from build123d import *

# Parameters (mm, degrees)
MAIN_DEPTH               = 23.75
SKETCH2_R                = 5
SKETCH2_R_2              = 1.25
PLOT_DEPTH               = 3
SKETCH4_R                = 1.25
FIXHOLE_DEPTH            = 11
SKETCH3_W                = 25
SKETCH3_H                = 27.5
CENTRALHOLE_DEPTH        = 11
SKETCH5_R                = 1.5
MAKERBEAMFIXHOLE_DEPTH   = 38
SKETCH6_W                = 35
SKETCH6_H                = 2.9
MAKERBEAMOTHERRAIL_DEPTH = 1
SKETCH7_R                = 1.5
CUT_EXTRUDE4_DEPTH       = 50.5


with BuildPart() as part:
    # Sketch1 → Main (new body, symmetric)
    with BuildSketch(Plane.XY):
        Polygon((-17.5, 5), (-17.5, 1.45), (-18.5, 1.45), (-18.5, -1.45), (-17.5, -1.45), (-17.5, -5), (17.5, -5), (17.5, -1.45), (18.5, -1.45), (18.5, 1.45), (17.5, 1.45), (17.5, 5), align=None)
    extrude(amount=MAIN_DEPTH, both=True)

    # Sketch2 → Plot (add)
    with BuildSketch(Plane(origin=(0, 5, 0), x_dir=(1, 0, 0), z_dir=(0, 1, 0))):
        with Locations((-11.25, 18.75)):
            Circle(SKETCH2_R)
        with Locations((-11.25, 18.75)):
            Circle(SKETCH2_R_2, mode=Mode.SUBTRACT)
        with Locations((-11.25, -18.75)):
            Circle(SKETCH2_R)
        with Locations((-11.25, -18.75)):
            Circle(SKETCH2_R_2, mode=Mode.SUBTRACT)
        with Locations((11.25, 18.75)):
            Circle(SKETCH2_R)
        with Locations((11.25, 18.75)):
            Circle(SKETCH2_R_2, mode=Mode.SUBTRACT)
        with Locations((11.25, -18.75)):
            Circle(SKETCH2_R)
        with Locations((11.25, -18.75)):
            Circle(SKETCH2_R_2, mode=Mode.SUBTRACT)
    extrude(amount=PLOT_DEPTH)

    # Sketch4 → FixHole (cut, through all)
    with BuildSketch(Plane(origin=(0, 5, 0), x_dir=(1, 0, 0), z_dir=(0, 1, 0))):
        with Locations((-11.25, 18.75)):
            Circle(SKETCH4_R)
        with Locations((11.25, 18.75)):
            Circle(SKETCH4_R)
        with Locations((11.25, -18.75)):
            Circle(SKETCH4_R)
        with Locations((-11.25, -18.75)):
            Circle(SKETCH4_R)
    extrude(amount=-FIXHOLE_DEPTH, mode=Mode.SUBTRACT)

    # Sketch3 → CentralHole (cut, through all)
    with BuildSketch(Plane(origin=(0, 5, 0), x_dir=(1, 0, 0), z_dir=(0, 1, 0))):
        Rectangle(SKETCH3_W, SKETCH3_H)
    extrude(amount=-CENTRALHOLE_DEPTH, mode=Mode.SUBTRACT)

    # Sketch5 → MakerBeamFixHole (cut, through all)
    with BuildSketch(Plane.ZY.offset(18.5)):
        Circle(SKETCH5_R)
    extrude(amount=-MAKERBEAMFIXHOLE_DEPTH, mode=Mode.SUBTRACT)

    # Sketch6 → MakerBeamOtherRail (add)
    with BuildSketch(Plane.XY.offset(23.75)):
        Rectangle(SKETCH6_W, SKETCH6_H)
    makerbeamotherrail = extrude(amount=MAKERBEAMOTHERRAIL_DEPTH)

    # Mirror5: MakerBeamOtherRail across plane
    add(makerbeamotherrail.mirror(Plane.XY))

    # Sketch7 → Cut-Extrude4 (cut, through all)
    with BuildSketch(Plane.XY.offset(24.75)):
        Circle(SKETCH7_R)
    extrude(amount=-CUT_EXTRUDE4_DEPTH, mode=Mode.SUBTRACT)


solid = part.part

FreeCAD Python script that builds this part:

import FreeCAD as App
import Part
import Sketcher

V = App.Vector
Q = App.Units.Quantity


def add_polygon(sketch, points):
    """Adds a closed chain of lines whose ends are joined by coincident constraints."""
    first, n = sketch.GeometryCount, len(points)
    for a, b in zip(points, points[1:] + points[:1]):
        sketch.addGeometry(Part.LineSegment(App.Vector(*a, 0), App.Vector(*b, 0)), False)
    for i in range(n):
        sketch.addConstraint(Sketcher.Constraint("Coincident", first + i, 2, first + (i + 1) % n, 1))

doc = App.newDocument("Part")
body = doc.addObject("PartDesign::Body", "Body")

# Sketch on XY plane
sketch1 = doc.addObject("Sketcher::SketchObject", "Sketch")
body.addObject(sketch1)
sketch1.AttachmentSupport = (doc.XY_Plane, [""])
sketch1.MapMode = "FlatFace"
add_polygon(sketch1, [(-17.5, 5), (-17.5, 1.4), (-18.5, 1.4), (-18.5, -1.4), (-17.5, -1.4), (-17.5, -5), (17.5, -5), (17.5, -1.4), (18.5, -1.4), (18.5, 1.4), (17.5, 1.4), (17.5, 5)])  # lines 0-11
sketch1.addConstraint([
    Sketcher.Constraint("Vertical", 0),
    Sketcher.Constraint("Horizontal", 1),
    Sketcher.Constraint("Vertical", 2),
    Sketcher.Constraint("Horizontal", 3),
    Sketcher.Constraint("Vertical", 4),
    Sketcher.Constraint("Horizontal", 5),
    Sketcher.Constraint("Vertical", 6),
    Sketcher.Constraint("Horizontal", 7),
    Sketcher.Constraint("Vertical", 8),
    Sketcher.Constraint("Horizontal", 9),
    Sketcher.Constraint("Vertical", 10),
    Sketcher.Constraint("Horizontal", 11),
    Sketcher.Constraint("Symmetric", 0, 2, 6, 2, -1, 1),
    Sketcher.Constraint("Symmetric", 2, 2, 8, 2, -1, 1),
    Sketcher.Constraint("Symmetric", 4, 2, 10, 2, -1, 1),
    Sketcher.Constraint("Symmetric", 3, 2, 6, 2, -2),
    Sketcher.Constraint("DistanceX", 1, 2, 1, 1, Q("1 mm")),
    Sketcher.Constraint("DistanceX", 5, 1, 5, 2, Q("35 mm")),
    Sketcher.Constraint("DistanceY", 2, 2, 2, 1, Q("2.9 mm")),
    Sketcher.Constraint("DistanceY", 4, 2, -1, 1, Q("5 mm")),
])
pad1 = doc.addObject("PartDesign::Pad", "Pad")
body.addObject(pad1)
pad1.Profile = sketch1
pad1.Length = 47.5
pad1.Midplane = True

# Sketch on XZ plane
sketch2 = doc.addObject("Sketcher::SketchObject", "Sketch001")
body.addObject(sketch2)
sketch2.AttachmentSupport = (doc.XZ_Plane, [""])
sketch2.MapMode = "FlatFace"
sketch2.AttachmentOffset = App.Placement(V(0, 0, -5), App.Rotation())
sketch2.addGeometry([
    Part.Circle(V(-11.2, -18.8, 0), V(0, 0, 1), 5),  # 0
    Part.Circle(V(-11.2, -18.8, 0), V(0, 0, 1), 1.2),  # 1
    Part.Circle(V(-11.2, 18.8, 0), V(0, 0, 1), 5),  # 2
    Part.Circle(V(-11.2, 18.8, 0), V(0, 0, 1), 1.2),  # 3
    Part.Circle(V(11.2, -18.8, 0), V(0, 0, 1), 5),  # 4
    Part.Circle(V(11.2, -18.8, 0), V(0, 0, 1), 1.2),  # 5
    Part.Circle(V(11.2, 18.8, 0), V(0, 0, 1), 5),  # 6
    Part.Circle(V(11.2, 18.8, 0), V(0, 0, 1), 1.2),  # 7
], False)
sketch2.addConstraint([
    Sketcher.Constraint("Coincident", 1, 3, 0, 3),
    Sketcher.Constraint("Coincident", 3, 3, 2, 3),
    Sketcher.Constraint("Coincident", 5, 3, 4, 3),
    Sketcher.Constraint("Coincident", 7, 3, 6, 3),
    Sketcher.Constraint("Equal", 0, 2),
    Sketcher.Constraint("Equal", 1, 3),
    Sketcher.Constraint("Equal", 2, 4),
    Sketcher.Constraint("Equal", 3, 5),
    Sketcher.Constraint("Equal", 4, 6),
    Sketcher.Constraint("Equal", 5, 7),
    Sketcher.Constraint("Symmetric", 2, 3, 4, 3, -1, 1),
    Sketcher.Constraint("Symmetric", 0, 3, 6, 3, -1, 1),
    Sketcher.Constraint("Symmetric", 0, 3, 4, 3, -2),
    Sketcher.Constraint("Diameter", 0, Q("10 mm")),
    Sketcher.Constraint("Diameter", 1, Q("2.5 mm")),
    Sketcher.Constraint("DistanceY", 0, 3, 2, 3, Q("37.5 mm")),
    Sketcher.Constraint("DistanceX", 0, 3, 4, 3, Q("22.5 mm")),
])
pad2 = doc.addObject("PartDesign::Pad", "Pad001")
body.addObject(pad2)
pad2.Profile = sketch2
pad2.Length = 3
pad2.Reversed = True

# Sketch on XZ plane
sketch3 = doc.addObject("Sketcher::SketchObject", "Sketch002")
body.addObject(sketch3)
sketch3.AttachmentSupport = (doc.XZ_Plane, [""])
sketch3.MapMode = "FlatFace"
sketch3.AttachmentOffset = App.Placement(V(0, 0, -5), App.Rotation())
sketch3.addGeometry([
    Part.Circle(V(-11.2, -18.8, 0), V(0, 0, 1), 1.2),
    Part.Circle(V(11.2, -18.8, 0), V(0, 0, 1), 1.2),
    Part.Circle(V(11.2, 18.8, 0), V(0, 0, 1), 1.2),
    Part.Circle(V(-11.2, 18.8, 0), V(0, 0, 1), 1.2),
], False)
sketch3.addConstraint([
    Sketcher.Constraint("Equal", 0, 1),
    Sketcher.Constraint("Equal", 1, 2),
    Sketcher.Constraint("Equal", 2, 3),
    Sketcher.Constraint("Symmetric", 0, 3, 2, 3, -1, 1),
    Sketcher.Constraint("Symmetric", 1, 3, 3, 3, -1, 1),
    Sketcher.Constraint("Symmetric", 0, 3, 1, 3, -2),
    Sketcher.Constraint("Diameter", 0, Q("2.5 mm")),
    Sketcher.Constraint("DistanceX", 0, 3, 1, 3, Q("22.5 mm")),
    Sketcher.Constraint("DistanceY", 1, 3, 2, 3, Q("37.5 mm")),
])
pocket1 = doc.addObject("PartDesign::Pocket", "Pocket")
body.addObject(pocket1)
pocket1.Profile = sketch3
pocket1.Type = "ThroughAll"
pocket1.Reversed = True

# Sketch on XZ plane
sketch4 = doc.addObject("Sketcher::SketchObject", "Sketch003")
body.addObject(sketch4)
sketch4.AttachmentSupport = (doc.XZ_Plane, [""])
sketch4.MapMode = "FlatFace"
sketch4.AttachmentOffset = App.Placement(V(0, 0, -5), App.Rotation())
add_polygon(sketch4, [(-12, -14), (-12, 14), (12, 14), (12, -14)])  # lines 0-3
sketch4.addConstraint([
    Sketcher.Constraint("Vertical", 0),
    Sketcher.Constraint("Horizontal", 1),
    Sketcher.Constraint("Vertical", 2),
    Sketcher.Constraint("Horizontal", 3),
    Sketcher.Constraint("Symmetric", 0, 2, 2, 2, -1, 1),
    Sketcher.Constraint("DistanceX", 1, 1, 1, 2, Q("25 mm")),
    Sketcher.Constraint("DistanceY", 0, 1, 0, 2, Q("27.5 mm")),
])
pocket2 = doc.addObject("PartDesign::Pocket", "Pocket001")
body.addObject(pocket2)
pocket2.Profile = sketch4
pocket2.Type = "ThroughAll"
pocket2.Reversed = True

# Sketch on YZ plane
sketch5 = doc.addObject("Sketcher::SketchObject", "Sketch004")
body.addObject(sketch5)
sketch5.AttachmentSupport = (doc.YZ_Plane, [""])
sketch5.MapMode = "FlatFace"
sketch5.AttachmentOffset = App.Placement(V(0, 0, -18.5), App.Rotation())
sketch5.addGeometry(Part.Circle(V(0, 0, 0), V(0, 0, 1), 1.5), False)
sketch5.addConstraint([
    Sketcher.Constraint("Coincident", 0, 3, -1, 1),
    Sketcher.Constraint("Diameter", 0, Q("3 mm")),
])
pocket3 = doc.addObject("PartDesign::Pocket", "Pocket002")
body.addObject(pocket3)
pocket3.Profile = sketch5
pocket3.Type = "ThroughAll"
pocket3.Reversed = True

# Sketch on XY plane
sketch6 = doc.addObject("Sketcher::SketchObject", "Sketch005")
body.addObject(sketch6)
sketch6.AttachmentSupport = (doc.XY_Plane, [""])
sketch6.MapMode = "FlatFace"
sketch6.AttachmentOffset = App.Placement(V(0, 0, 23.75), App.Rotation())
add_polygon(sketch6, [(-17.5, 1.4), (-17.5, -1.4), (17.5, -1.4), (17.5, 1.4)])  # lines 0-3
sketch6.addConstraint([
    Sketcher.Constraint("Vertical", 0),
    Sketcher.Constraint("Horizontal", 1),
    Sketcher.Constraint("Vertical", 2),
    Sketcher.Constraint("Horizontal", 3),
    Sketcher.Constraint("Symmetric", 0, 2, 2, 2, -1, 1),
    Sketcher.Constraint("DistanceX", 1, 1, 1, 2, Q("35 mm")),
    Sketcher.Constraint("DistanceY", 0, 2, 0, 1, Q("2.9 mm")),
])
pad3 = doc.addObject("PartDesign::Pad", "Pad002")
body.addObject(pad3)
pad3.Profile = sketch6
pad3.Length = 1
doc.recompute()

mirrored = doc.addObject("PartDesign::Mirrored", "Mirrored")
body.addObject(mirrored)
mirrored.Originals = [pad3]
mirrored.MirrorPlane = (doc.XY_Plane, [""])
body.Tip = mirrored

# Sketch on XY plane
sketch7 = doc.addObject("Sketcher::SketchObject", "Sketch006")
body.addObject(sketch7)
sketch7.AttachmentSupport = (doc.XY_Plane, [""])
sketch7.MapMode = "FlatFace"
sketch7.AttachmentOffset = App.Placement(V(0, 0, 24.75), App.Rotation())
sketch7.addGeometry(Part.Circle(V(0, 0, 0), V(0, 0, 1), 1.5), False)
sketch7.addConstraint([
    Sketcher.Constraint("Coincident", 0, 3, -1, 1),
    Sketcher.Constraint("Diameter", 0, Q("3 mm")),
])
pocket4 = doc.addObject("PartDesign::Pocket", "Pocket003")
body.addObject(pocket4)
pocket4.Profile = sketch7
pocket4.Type = "ThroughAll"

doc.recompute()
